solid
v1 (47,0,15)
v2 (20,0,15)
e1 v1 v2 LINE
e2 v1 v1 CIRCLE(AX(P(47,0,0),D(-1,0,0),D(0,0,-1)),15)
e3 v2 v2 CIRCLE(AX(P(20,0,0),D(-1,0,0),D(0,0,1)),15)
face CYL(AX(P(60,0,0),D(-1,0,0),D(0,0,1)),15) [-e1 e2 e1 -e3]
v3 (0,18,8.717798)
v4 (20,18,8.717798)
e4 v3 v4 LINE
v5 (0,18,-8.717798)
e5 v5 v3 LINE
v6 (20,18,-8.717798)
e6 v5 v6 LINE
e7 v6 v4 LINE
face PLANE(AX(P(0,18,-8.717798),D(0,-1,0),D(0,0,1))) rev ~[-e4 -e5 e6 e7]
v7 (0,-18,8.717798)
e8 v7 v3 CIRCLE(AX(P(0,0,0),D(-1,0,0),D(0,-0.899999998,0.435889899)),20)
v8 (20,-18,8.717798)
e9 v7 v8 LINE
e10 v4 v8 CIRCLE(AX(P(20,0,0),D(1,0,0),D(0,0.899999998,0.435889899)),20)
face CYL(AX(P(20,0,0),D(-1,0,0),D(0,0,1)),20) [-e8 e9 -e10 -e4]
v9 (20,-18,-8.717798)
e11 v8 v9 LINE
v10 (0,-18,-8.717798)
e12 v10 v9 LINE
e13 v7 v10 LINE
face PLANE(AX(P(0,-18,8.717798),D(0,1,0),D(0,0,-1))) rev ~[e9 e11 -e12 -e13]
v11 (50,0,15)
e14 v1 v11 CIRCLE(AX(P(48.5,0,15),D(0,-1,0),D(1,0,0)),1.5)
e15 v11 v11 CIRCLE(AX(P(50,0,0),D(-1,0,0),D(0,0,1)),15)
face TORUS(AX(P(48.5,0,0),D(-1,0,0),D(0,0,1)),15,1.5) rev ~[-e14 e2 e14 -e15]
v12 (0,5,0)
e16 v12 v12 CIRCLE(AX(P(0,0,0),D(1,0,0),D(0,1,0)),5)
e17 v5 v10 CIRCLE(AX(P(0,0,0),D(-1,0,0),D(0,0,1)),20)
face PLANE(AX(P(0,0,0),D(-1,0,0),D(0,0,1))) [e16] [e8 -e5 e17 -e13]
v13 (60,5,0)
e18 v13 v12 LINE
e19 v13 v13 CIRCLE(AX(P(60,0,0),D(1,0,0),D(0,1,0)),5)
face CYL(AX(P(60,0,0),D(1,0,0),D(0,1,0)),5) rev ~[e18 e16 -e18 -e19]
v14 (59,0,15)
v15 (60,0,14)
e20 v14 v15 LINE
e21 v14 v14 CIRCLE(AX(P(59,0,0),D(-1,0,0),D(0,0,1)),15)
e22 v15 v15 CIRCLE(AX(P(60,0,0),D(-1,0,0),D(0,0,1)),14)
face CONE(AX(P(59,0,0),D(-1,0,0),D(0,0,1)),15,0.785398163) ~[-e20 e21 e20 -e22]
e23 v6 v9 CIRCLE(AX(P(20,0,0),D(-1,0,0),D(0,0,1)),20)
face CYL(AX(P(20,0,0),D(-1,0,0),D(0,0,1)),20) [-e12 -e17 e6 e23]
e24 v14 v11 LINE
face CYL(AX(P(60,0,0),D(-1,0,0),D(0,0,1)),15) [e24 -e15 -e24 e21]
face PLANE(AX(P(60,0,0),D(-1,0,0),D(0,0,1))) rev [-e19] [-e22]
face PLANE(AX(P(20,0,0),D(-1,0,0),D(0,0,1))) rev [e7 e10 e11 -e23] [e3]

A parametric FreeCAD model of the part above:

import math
import FreeCAD as App
import Part
import Sketcher

V = App.Vector


def edges_at(feature, points):
    """Names of the edges that pass closest to the given points."""
    edges = feature.Shape.Edges
    near = lambda p: min(range(len(edges)), key=lambda i: edges[i].distToShape(Part.Vertex(*p))[0])
    return sorted({f"Edge{near(p) + 1}" for p in points})


def add_polygon(sketch, points):
    """Adds a closed chain of lines whose ends are joined by coincident constraints."""
    first, n = sketch.GeometryCount, len(points)
    for a, b in zip(points, points[1:] + points[:1]):
        sketch.addGeometry(Part.LineSegment(App.Vector(*a, 0), App.Vector(*b, 0)), False)
    for i in range(n):
        sketch.addConstraint(Sketcher.Constraint("Coincident", first + i, 2, first + (i + 1) % n, 1))

doc = App.newDocument("Part")
body = doc.addObject("PartDesign::Body", "Body")

# Sketch on XZ plane
sketch1 = body.newObject("Sketcher::SketchObject", "Sketch")
sketch1.AttachmentSupport = (doc.getObject("XZ_Plane"), [""])
sketch1.MapMode = "FlatFace"
add_polygon(sketch1, [(0, 20), (0, 0), (60, 0), (60, 15), (20, 15), (20, 20)])  # lines 0-5
sketch1.addConstraint(Sketcher.Constraint("Vertical", 0))
sketch1.addConstraint(Sketcher.Constraint("Horizontal", 1))
sketch1.addConstraint(Sketcher.Constraint("Vertical", 2))
sketch1.addConstraint(Sketcher.Constraint("Horizontal", 3))
sketch1.addConstraint(Sketcher.Constraint("Vertical", 4))
sketch1.addConstraint(Sketcher.Constraint("Horizontal", 5))
sketch1.addConstraint(Sketcher.Constraint("Coincident", 0, 2, -1, 1))
sketch1.addConstraint(Sketcher.Constraint("Equal", 5, 0))
sketch1.addConstraint(Sketcher.Constraint("DistanceX", 1, 1, 1, 2, 60.0))
sketch1.addConstraint(Sketcher.Constraint("DistanceX", 3, 2, 3, 1, 40.0))
sketch1.addConstraint(Sketcher.Constraint("DistanceY", 2, 1, 2, 2, 15.0))
revolution = body.newObject("PartDesign::Revolution", "Revolution")
revolution.Profile = sketch1
revolution.ReferenceAxis = (sketch1, ["H_Axis"])
revolution.Angle = 360

# Sketch on XZ plane
sketch2 = body.newObject("Sketcher::SketchObject", "Sketch001")
sketch2.AttachmentSupport = (doc.getObject("XZ_Plane"), [""])
sketch2.MapMode = "FlatFace"
sketch2.addGeometry(Part.Circle(V(48.5, 15, 0), V(0, 0, 1), 1.5), False)
sketch2.addConstraint(Sketcher.Constraint("Diameter", 0, 3.0))
sketch2.addConstraint(Sketcher.Constraint("DistanceY", -1, 1, 0, 3, 15.0))
sketch2.addConstraint(Sketcher.Constraint("DistanceX", -1, 1, 0, 3, 48.5))
groove = body.newObject("PartDesign::Groove", "Groove")
groove.Profile = sketch2
groove.ReferenceAxis = (sketch2, ["H_Axis"])
groove.Angle = 360
doc.recompute()

chamfer = body.newObject("PartDesign::Chamfer", "Chamfer")
chamfer.Base = (groove, edges_at(groove, [(60, 0, -15)]))
chamfer.Size = 1

# Sketch on YZ plane
sketch3 = body.newObject("Sketcher::SketchObject", "Sketch002")
sketch3.AttachmentSupport = (doc.getObject("YZ_Plane"), [""])
sketch3.MapMode = "FlatFace"
sketch3.AttachmentOffset = App.Placement(V(0, 0, 60), App.Rotation())
sketch3.addGeometry(Part.Circle(V(0, 0, 0), V(0, 0, 1), 5), False)
sketch3.addConstraint(Sketcher.Constraint("Coincident", 0, 3, -1, 1))
sketch3.addConstraint(Sketcher.Constraint("Diameter", 0, 10.0))
pocket1 = body.newObject("PartDesign::Pocket", "Pocket")
pocket1.Profile = sketch3
pocket1.Type = "ThroughAll"

# Sketch on YZ plane
sketch4 = body.newObject("Sketcher::SketchObject", "Sketch003")
sketch4.AttachmentSupport = (doc.getObject("YZ_Plane"), [""])
sketch4.MapMode = "FlatFace"
sketch4.addGeometry(Part.ArcOfCircle(Part.Circle(V(0, 0, 0), V(0, 0, 1), 20), math.radians(-26), math.radians(26)), False)
sketch4.addGeometry(Part.LineSegment(V(18, -9, 0), V(18, 9, 0)), False)
sketch4.addGeometry(Part.LineSegment(V(-18, 9, 0), V(-18, -9, 0)), False)
sketch4.addGeometry(Part.ArcOfCircle(Part.Circle(V(0, 0, 0), V(0, 0, 1), 20), math.radians(180), math.radians(206)), False)
sketch4.addGeometry(Part.ArcOfCircle(Part.Circle(V(0, 0, 0), V(0, 0, 1), 20), math.radians(154), math.radians(180)), False)
sketch4.addConstraint(Sketcher.Constraint("Coincident", 0, 1, 1, 1))
sketch4.addConstraint(Sketcher.Constraint("Coincident", 1, 2, 0, 2))
sketch4.addConstraint(Sketcher.Constraint("Coincident", 2, 2, 3, 2))
sketch4.addConstraint(Sketcher.Constraint("Tangent", 3, 1, 4, 2))
sketch4.addConstraint(Sketcher.Constraint("Coincident", 4, 1, 2, 1))
sketch4.addConstraint(Sketcher.Constraint("Vertical", 1))
sketch4.addConstraint(Sketcher.Constraint("Vertical", 2))
sketch4.addConstraint(Sketcher.Constraint("Coincident", 0, 3, -1, 1))
sketch4.addConstraint(Sketcher.Constraint("Equal", 3, 4))
sketch4.addConstraint(Sketcher.Constraint("Symmetric", 1, 2, 2, 2, -1, 1))
sketch4.addConstraint(Sketcher.Constraint("PointOnObject", 3, 1, -1))
sketch4.addConstraint(Sketcher.Constraint("Horizontal", 1, 2, 4, 1))
sketch4.addConstraint(Sketcher.Constraint("Radius", 0, 20.0))
sketch4.addConstraint(Sketcher.Constraint("DistanceX", -1, 1, 0, 1, 18.0))
sketch4.addConstraint(Sketcher.Constraint("DistanceX", 3, 1, -1, 1, 20.0))
pocket2 = body.newObject("PartDesign::Pocket", "Pocket001")
pocket2.Profile = sketch4
pocket2.Type = "ThroughAll"
pocket2.Reversed = True

doc.recompute()
